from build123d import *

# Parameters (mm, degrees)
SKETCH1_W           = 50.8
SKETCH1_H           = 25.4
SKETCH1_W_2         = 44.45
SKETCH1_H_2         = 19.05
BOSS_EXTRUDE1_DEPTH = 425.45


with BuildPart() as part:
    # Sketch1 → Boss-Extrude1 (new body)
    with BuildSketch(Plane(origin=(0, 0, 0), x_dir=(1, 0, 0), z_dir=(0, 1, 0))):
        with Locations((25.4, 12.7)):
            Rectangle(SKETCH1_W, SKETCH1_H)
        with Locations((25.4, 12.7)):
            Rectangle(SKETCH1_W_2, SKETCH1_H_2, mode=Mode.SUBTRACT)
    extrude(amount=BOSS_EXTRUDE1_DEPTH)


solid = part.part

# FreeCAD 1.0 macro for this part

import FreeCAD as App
import Part
import Sketcher
Q = App.Units.Quantity


def add_polygon(sketch, points):
    """Adds a closed chain of lines whose ends are joined by coincident constraints."""
    first, n = sketch.GeometryCount, len(points)
    for a, b in zip(points, points[1:] + points[:1]):
        sketch.addGeometry(Part.LineSegment(App.Vector(*a, 0), App.Vector(*b, 0)), False)
    for i in range(n):
        sketch.addConstraint(Sketcher.Constraint("Coincident", first + i, 2, first + (i + 1) % n, 1))

doc = App.newDocument("Part")
body = doc.addObject("PartDesign::Body", "Body")

sketch1 = body.newObject("Sketcher::SketchObject", "Sketch")
sketch1.AttachmentSupport = (doc.getObject("XZ_Plane"), [""])
sketch1.MapMode = "FlatFace"
add_polygon(sketch1, [(0, -25.4), (0, 0), (50.8, 0), (50.8, -25.4)])
add_polygon(sketch1, [(47.625, -3.175), (3.175, -3.175), (3.175, -22.225), (47.625, -22.225)])
sketch1.addConstraint([
    Sketcher.Constraint("Vertical", 0),
    Sketcher.Constraint("Horizontal", 1),
    Sketcher.Constraint("Vertical", 2),
    Sketcher.Constraint("Horizontal", 3),
    Sketcher.Constraint("Horizontal", 4),
    Sketcher.Constraint("Vertical", 5),
    Sketcher.Constraint("Horizontal", 6),
    Sketcher.Constraint("Vertical", 7),
    Sketcher.Constraint("Coincident", 0, 2, -1, 1),
    Sketcher.Constraint("DistanceX", 1, 1, 1, 2, Q("2 in")),
    Sketcher.Constraint("DistanceY", 0, 1, 0, 2, Q("1 in")),
    Sketcher.Constraint("DistanceX", 4, 2, 4, 1, Q("1.75 in")),
    Sketcher.Constraint("DistanceY", 5, 2, 5, 1, Q("0.75 in")),
    Sketcher.Constraint("DistanceX", -1, 1, 4, 2, Q("0.125 in")),
    Sketcher.Constraint("DistanceY", 4, 2, -1, 1, Q("0.125 in")),
])
pad1 = body.newObject("PartDesign::Pad", "Pad")
pad1.Profile = sketch1
pad1.Length = Q("16.75 in")
pad1.Reversed = True

doc.recompute()
